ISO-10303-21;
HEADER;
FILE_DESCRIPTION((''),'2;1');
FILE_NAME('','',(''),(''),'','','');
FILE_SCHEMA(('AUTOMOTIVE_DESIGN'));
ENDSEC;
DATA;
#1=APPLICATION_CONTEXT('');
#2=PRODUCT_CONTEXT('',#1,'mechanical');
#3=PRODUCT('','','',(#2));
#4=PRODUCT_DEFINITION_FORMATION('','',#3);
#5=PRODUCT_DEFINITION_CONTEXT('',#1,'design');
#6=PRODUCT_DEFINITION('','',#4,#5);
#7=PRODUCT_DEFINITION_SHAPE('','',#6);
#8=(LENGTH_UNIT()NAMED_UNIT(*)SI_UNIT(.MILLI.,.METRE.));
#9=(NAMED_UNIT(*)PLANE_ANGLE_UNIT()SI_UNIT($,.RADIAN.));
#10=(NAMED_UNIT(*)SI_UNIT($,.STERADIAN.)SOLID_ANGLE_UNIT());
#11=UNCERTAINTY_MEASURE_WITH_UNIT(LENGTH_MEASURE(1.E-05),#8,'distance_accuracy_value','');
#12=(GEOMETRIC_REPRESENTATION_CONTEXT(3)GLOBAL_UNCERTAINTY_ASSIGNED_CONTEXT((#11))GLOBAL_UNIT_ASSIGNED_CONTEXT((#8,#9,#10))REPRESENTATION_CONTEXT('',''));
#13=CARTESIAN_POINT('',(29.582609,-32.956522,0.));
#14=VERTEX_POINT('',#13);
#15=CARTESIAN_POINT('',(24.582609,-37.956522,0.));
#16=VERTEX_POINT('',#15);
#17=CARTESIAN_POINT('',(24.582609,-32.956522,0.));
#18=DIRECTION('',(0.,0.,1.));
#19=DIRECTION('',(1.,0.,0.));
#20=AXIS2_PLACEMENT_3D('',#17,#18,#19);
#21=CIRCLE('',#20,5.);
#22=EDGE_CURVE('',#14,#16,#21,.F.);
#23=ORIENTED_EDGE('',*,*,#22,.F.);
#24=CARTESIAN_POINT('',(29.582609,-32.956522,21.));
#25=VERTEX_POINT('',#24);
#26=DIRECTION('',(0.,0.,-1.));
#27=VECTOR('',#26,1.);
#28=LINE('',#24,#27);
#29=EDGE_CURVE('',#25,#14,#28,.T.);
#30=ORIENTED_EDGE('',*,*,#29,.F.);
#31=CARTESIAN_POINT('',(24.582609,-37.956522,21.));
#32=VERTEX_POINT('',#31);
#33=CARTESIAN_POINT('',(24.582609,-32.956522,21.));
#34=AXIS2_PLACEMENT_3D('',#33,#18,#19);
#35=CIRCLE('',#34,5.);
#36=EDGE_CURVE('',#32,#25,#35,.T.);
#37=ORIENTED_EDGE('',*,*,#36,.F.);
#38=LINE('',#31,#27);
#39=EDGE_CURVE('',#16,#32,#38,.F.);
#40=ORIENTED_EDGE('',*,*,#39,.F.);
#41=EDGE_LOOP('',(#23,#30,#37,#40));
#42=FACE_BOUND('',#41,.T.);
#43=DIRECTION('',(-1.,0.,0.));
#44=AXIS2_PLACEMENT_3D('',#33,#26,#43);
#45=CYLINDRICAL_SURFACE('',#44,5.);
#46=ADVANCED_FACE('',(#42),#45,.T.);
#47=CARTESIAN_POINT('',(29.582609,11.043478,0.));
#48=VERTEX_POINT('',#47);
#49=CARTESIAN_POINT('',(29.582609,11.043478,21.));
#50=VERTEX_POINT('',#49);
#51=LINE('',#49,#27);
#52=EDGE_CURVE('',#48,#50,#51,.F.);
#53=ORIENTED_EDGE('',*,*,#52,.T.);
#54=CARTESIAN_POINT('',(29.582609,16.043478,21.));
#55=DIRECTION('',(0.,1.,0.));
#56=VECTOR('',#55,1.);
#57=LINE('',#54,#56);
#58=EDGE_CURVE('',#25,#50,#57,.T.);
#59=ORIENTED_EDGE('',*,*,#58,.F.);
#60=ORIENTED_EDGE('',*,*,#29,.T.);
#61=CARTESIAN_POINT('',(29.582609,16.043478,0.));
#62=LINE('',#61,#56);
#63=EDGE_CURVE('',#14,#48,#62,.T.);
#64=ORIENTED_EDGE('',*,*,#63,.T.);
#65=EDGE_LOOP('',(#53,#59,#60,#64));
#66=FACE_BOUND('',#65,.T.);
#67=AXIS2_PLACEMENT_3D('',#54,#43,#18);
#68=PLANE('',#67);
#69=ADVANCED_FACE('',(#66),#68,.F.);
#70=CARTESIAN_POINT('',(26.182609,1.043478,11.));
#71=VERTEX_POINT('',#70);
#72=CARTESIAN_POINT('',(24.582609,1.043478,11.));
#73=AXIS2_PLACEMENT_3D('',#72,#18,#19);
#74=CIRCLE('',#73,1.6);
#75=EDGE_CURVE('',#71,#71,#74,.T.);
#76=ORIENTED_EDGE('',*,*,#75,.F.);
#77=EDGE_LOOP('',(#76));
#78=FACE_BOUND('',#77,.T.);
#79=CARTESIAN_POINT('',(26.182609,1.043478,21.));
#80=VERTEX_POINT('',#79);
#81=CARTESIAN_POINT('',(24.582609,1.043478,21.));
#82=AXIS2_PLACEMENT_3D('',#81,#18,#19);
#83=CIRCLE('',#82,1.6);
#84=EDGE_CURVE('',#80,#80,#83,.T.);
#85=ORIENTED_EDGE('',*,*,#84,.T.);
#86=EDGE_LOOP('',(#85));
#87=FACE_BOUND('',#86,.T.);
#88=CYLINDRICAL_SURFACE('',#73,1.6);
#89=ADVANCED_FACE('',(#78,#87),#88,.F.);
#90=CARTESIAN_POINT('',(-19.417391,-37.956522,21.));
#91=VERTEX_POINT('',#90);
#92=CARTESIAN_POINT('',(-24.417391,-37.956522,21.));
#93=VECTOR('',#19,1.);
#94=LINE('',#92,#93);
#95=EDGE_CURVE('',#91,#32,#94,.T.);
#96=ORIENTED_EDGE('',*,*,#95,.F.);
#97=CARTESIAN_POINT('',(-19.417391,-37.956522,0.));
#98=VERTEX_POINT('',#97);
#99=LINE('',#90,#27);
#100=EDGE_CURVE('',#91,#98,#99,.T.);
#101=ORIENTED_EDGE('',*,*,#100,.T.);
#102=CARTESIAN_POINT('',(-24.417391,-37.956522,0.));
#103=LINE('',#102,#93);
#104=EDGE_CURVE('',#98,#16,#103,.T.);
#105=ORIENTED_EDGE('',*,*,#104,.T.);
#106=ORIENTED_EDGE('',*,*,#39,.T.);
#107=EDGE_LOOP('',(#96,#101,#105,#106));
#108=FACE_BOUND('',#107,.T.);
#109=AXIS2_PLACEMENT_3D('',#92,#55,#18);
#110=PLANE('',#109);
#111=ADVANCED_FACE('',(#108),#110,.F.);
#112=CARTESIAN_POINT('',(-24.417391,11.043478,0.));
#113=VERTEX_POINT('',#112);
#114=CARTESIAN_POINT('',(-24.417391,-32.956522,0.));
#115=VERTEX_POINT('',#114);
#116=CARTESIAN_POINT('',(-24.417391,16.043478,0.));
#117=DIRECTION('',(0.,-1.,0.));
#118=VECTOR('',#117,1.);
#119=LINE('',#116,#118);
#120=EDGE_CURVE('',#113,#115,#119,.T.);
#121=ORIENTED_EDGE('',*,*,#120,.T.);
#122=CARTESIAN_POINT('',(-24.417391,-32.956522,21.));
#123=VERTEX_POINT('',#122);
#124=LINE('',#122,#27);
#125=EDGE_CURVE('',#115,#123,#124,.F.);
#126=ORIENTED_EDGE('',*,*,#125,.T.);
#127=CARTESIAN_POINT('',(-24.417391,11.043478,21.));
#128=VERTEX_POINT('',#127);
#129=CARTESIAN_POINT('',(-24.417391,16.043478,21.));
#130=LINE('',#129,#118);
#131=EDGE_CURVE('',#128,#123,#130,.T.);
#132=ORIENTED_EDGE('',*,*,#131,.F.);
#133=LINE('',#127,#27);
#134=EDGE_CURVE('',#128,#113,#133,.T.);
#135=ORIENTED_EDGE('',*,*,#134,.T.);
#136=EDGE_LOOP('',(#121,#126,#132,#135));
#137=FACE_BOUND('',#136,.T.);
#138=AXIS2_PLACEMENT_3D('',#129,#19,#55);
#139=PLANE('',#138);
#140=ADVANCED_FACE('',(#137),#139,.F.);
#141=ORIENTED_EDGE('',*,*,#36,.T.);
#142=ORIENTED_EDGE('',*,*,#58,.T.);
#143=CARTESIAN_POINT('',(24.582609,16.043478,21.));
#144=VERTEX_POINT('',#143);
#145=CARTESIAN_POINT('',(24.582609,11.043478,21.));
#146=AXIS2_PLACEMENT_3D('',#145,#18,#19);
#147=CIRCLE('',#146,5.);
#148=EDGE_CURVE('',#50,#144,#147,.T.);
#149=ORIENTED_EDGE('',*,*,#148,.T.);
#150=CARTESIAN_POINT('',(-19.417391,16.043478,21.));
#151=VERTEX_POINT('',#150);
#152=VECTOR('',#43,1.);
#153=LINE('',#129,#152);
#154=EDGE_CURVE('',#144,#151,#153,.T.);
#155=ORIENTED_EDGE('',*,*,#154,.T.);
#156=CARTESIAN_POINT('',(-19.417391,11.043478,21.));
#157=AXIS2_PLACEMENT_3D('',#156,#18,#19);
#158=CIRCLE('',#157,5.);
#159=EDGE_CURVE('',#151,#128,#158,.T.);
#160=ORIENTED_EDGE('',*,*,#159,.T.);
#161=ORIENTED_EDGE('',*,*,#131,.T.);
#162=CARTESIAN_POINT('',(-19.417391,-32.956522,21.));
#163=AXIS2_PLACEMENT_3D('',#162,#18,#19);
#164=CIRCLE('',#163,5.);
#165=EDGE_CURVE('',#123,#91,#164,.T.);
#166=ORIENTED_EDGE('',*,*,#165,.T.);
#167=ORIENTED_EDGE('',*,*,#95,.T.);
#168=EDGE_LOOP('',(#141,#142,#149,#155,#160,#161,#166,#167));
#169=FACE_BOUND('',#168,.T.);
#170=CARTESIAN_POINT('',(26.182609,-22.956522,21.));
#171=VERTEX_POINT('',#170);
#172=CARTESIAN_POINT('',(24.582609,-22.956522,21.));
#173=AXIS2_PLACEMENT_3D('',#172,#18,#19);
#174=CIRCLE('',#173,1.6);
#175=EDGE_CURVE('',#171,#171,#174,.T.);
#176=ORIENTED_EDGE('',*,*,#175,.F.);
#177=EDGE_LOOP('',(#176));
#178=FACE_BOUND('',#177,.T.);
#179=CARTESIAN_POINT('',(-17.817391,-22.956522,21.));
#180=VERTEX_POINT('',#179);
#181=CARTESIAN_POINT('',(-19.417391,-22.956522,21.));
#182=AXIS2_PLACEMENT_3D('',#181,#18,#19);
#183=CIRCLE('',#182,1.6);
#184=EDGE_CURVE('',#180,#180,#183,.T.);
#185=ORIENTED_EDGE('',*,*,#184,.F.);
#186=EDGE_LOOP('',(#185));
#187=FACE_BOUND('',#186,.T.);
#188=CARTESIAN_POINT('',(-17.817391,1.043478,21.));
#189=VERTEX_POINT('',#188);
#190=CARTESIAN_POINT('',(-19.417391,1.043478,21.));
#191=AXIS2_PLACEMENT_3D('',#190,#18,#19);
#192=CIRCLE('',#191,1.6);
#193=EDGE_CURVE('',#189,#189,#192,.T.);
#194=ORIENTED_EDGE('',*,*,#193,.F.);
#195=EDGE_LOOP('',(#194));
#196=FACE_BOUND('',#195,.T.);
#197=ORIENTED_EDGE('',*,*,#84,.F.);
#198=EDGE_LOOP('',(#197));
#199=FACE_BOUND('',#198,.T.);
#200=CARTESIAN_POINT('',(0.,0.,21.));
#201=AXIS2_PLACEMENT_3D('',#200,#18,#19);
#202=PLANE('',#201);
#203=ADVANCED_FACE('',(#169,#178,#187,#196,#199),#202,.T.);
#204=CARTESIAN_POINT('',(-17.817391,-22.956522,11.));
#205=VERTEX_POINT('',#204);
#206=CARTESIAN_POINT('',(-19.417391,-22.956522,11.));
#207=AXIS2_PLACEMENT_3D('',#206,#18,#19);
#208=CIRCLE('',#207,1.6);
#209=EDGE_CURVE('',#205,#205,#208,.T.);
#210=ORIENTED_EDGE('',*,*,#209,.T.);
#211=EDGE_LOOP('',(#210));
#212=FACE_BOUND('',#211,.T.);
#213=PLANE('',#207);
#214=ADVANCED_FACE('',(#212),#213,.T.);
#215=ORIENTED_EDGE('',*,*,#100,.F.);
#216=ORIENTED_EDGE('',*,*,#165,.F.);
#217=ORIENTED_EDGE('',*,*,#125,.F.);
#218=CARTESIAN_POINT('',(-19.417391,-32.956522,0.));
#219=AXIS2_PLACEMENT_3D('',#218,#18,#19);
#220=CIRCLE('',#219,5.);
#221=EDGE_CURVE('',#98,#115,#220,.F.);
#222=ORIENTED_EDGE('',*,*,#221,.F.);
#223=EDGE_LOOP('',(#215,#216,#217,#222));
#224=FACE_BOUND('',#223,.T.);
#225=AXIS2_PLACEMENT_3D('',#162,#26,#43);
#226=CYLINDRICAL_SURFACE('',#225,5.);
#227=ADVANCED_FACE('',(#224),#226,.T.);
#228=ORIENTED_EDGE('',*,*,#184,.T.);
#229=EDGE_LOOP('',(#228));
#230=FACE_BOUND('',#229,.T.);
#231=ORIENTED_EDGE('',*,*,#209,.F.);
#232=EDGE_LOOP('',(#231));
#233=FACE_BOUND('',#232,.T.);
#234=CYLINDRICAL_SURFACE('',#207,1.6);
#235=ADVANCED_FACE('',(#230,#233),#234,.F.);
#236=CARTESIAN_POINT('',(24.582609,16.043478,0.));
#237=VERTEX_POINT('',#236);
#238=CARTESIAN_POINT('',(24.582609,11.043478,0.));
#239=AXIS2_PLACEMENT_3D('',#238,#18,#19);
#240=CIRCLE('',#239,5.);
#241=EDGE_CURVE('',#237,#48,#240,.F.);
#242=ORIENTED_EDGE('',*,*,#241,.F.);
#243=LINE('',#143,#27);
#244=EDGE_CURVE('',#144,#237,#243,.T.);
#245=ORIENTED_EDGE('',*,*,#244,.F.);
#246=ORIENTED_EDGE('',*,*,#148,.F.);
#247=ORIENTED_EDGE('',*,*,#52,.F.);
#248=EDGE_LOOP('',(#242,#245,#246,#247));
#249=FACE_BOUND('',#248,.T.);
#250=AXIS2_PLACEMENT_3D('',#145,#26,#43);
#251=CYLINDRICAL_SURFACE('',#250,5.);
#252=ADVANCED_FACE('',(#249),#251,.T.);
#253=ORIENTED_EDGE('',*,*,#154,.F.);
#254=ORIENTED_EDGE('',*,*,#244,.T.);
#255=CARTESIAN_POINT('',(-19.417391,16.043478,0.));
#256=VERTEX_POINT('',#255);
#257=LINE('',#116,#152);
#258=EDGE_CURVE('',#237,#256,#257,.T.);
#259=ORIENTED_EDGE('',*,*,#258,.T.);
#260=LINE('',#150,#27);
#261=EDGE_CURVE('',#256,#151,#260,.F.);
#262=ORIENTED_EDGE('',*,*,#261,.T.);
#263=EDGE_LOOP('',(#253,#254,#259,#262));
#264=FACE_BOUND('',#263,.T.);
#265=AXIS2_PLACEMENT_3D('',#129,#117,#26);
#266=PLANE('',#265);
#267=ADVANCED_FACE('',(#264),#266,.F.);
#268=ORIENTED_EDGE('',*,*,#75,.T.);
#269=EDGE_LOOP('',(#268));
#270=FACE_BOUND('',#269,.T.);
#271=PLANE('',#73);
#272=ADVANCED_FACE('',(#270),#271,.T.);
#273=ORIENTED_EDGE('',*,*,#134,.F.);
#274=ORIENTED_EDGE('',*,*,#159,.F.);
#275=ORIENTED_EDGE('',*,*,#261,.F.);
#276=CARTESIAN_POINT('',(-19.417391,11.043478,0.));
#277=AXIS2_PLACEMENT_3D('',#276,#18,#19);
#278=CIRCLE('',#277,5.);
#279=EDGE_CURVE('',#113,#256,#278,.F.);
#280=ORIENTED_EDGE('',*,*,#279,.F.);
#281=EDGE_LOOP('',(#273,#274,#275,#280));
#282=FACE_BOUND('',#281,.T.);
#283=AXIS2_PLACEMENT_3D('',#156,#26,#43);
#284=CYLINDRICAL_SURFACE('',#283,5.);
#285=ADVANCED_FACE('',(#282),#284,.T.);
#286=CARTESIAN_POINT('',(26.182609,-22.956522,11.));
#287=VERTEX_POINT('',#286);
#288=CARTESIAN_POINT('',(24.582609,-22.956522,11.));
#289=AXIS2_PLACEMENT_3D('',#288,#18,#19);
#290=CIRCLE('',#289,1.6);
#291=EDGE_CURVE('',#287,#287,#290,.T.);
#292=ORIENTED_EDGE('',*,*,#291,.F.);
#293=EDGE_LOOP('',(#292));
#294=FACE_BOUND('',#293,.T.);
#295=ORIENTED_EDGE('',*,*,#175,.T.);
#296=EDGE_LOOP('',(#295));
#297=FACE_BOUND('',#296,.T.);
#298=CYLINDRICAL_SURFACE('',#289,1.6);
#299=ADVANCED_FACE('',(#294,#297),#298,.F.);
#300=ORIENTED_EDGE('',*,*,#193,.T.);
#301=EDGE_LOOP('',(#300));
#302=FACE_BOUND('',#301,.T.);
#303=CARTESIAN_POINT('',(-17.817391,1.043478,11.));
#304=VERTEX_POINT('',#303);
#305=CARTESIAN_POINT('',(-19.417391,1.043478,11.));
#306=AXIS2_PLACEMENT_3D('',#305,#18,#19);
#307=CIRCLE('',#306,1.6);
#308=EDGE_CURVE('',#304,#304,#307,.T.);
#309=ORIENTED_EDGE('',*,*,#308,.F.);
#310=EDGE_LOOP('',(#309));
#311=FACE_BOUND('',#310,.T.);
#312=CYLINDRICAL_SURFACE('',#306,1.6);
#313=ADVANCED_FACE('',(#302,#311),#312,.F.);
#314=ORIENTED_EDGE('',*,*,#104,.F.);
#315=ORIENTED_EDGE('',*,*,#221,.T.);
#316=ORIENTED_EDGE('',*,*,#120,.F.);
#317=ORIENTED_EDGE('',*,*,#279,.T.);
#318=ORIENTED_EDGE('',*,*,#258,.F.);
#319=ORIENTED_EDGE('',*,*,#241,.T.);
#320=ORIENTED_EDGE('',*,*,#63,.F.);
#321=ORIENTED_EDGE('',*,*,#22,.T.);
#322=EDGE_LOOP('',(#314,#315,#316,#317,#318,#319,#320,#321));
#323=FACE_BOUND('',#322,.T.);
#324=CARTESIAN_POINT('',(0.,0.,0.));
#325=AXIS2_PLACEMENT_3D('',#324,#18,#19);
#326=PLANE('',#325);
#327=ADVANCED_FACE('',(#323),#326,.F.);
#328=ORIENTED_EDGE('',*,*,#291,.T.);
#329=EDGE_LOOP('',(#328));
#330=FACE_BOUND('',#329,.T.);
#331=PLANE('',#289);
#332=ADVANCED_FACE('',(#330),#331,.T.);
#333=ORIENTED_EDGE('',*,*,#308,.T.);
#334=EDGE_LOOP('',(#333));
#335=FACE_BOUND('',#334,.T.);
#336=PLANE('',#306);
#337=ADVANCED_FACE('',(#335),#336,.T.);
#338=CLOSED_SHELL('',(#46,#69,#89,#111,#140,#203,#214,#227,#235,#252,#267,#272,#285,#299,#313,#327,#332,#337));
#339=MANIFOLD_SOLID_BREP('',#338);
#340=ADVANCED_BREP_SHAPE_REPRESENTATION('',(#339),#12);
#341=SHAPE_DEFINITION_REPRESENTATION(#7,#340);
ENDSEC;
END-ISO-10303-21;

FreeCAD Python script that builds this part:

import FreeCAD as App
import Part
import Sketcher

V = App.Vector
Q = App.Units.Quantity


def edges_at(feature, points):
    """Names of the edges that pass closest to the given points."""
    edges = feature.Shape.Edges
    near = lambda p: min(range(len(edges)), key=lambda i: edges[i].distToShape(Part.Vertex(*p))[0])
    return sorted({f"Edge{near(p) + 1}" for p in points})

doc = App.newDocument("Part")
body = doc.addObject("PartDesign::Body", "Body")

# Sketch on XY plane
sketch1 = doc.addObject("Sketcher::SketchObject", "Sketch")
body.addObject(sketch1)
sketch1.AttachmentSupport = (doc.XY_Plane, [""])
sketch1.MapMode = "FlatFace"
sketch1.addGeometry([
    Part.LineSegment(V(-24.417391, 16.043478, 0), V(-24.417391, -37.956522, 0)),
    Part.LineSegment(V(-24.417391, -37.956522, 0), V(29.582609, -37.956522, 0)),
    Part.LineSegment(V(29.582609, -37.956522, 0), V(29.582609, 16.043478, 0)),
    Part.LineSegment(V(29.582609, 16.043478, 0), V(-24.417391, 16.043478, 0)),
], False)
sketch1.addConstraint([
    Sketcher.Constraint("Coincident", 0, 2, 1, 1),
    Sketcher.Constraint("Coincident", 1, 2, 2, 1),
    Sketcher.Constraint("Coincident", 2, 2, 3, 1),
    Sketcher.Constraint("Coincident", 3, 2, 0, 1),
    Sketcher.Constraint("Vertical", 0),
    Sketcher.Constraint("Horizontal", 1),
    Sketcher.Constraint("Vertical", 2),
    Sketcher.Constraint("Horizontal", 3),
    Sketcher.Constraint("Equal", 3, 0),
    Sketcher.Constraint("DistanceX", 1, 1, 1, 2, Q("54 mm")),
    Sketcher.Constraint("DistanceX", 0, 2, -1, 1, Q("24.417391 mm")),
    Sketcher.Constraint("DistanceY", 0, 2, -1, 1, Q("37.956522 mm")),
])
pad1 = doc.addObject("PartDesign::Pad", "Pad")
body.addObject(pad1)
pad1.Profile = sketch1
pad1.Length = 21
doc.recompute()

fillet = doc.addObject("PartDesign::Fillet", "Fillet")
body.addObject(fillet)
fillet.Base = (pad1, edges_at(pad1, [
    (-24.417, 16.043, 10.5),
    (29.583, 16.043, 10.5),
    (29.583, -37.957, 10.5),
    (-24.417, -37.957, 10.5),
]))
fillet.Radius = 5

# Sketch on XY plane
sketch2 = doc.addObject("Sketcher::SketchObject", "Sketch001")
body.addObject(sketch2)
sketch2.AttachmentSupport = (doc.XY_Plane, [""])
sketch2.MapMode = "FlatFace"
sketch2.AttachmentOffset = App.Placement(V(0, 0, 21), App.Rotation())
sketch2.addGeometry([
    Part.Circle(V(24.582609, -22.956522, 0), V(0, 0, 1), 1.6),
    Part.Circle(V(-19.417391, -22.956522, 0), V(0, 0, 1), 1.6),
    Part.Circle(V(-19.417391, 1.043478, 0), V(0, 0, 1), 1.6),
    Part.Circle(V(24.582609, 1.043478, 0), V(0, 0, 1), 1.6),
], False)
sketch2.addConstraint([
    Sketcher.Constraint("Equal", 0, 1),
    Sketcher.Constraint("Equal", 1, 2),
    Sketcher.Constraint("Equal", 2, 3),
    Sketcher.Constraint("Horizontal", 0, 3, 1, 3),
    Sketcher.Constraint("Horizontal", 2, 3, 3, 3),
    Sketcher.Constraint("Vertical", 1, 3, 2, 3),
    Sketcher.Constraint("Vertical", 0, 3, 3, 3),
    Sketcher.Constraint("Diameter", 0, Q("3.2 mm")),
    Sketcher.Constraint("DistanceX", 1, 3, 0, 3, Q("44 mm")),
    Sketcher.Constraint("DistanceY", 1, 3, 2, 3, Q("24 mm")),
    Sketcher.Constraint("DistanceX", -1, 1, 0, 3, Q("24.582609 mm")),
    Sketcher.Constraint("DistanceY", 0, 3, -1, 1, Q("22.956522 mm")),
])
pocket1 = doc.addObject("PartDesign::Pocket", "Pocket")
body.addObject(pocket1)
pocket1.Profile = sketch2
pocket1.Length = 10

doc.recompute()
